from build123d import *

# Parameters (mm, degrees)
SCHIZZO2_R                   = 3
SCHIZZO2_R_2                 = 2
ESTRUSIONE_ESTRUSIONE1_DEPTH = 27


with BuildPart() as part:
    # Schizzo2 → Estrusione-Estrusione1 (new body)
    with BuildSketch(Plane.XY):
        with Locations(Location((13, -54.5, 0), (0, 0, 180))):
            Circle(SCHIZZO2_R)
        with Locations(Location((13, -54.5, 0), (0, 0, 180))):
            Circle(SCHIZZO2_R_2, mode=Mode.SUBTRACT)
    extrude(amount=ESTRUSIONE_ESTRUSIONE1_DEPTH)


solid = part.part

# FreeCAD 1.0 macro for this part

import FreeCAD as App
import Part
import Sketcher
Q = App.Units.Quantity

doc = App.newDocument("Part")
body = doc.addObject("PartDesign::Body", "Body")

sketch1 = body.newObject("Sketcher::SketchObject", "Sketch")
sketch1.AttachmentSupport = (doc.getObject("XY_Plane"), [""])
sketch1.MapMode = "FlatFace"
sketch1.addGeometry(Part.Circle(App.Vector(13, -54.5, 0), App.Vector(0, 0, 1), 3), False)
sketch1.addGeometry(Part.Circle(App.Vector(13, -54.5, 0), App.Vector(0, 0, 1), 2), False)
sketch1.addConstraint(Sketcher.Constraint("Coincident", 1, 3, 0, 3))
sketch1.addConstraint(Sketcher.Constraint("Diameter", 0, Q("6 mm")))
sketch1.addConstraint(Sketcher.Constraint("Diameter", 1, Q("4 mm")))
sketch1.addConstraint(Sketcher.Constraint("DistanceX", -1, 1, 0, 3, Q("13 mm")))
sketch1.addConstraint(Sketcher.Constraint("DistanceY", 0, 3, -1, 1, Q("54.5 mm")))
pad1 = body.newObject("PartDesign::Pad", "Pad")
pad1.Profile = sketch1
pad1.Length = 27

doc.recompute()
